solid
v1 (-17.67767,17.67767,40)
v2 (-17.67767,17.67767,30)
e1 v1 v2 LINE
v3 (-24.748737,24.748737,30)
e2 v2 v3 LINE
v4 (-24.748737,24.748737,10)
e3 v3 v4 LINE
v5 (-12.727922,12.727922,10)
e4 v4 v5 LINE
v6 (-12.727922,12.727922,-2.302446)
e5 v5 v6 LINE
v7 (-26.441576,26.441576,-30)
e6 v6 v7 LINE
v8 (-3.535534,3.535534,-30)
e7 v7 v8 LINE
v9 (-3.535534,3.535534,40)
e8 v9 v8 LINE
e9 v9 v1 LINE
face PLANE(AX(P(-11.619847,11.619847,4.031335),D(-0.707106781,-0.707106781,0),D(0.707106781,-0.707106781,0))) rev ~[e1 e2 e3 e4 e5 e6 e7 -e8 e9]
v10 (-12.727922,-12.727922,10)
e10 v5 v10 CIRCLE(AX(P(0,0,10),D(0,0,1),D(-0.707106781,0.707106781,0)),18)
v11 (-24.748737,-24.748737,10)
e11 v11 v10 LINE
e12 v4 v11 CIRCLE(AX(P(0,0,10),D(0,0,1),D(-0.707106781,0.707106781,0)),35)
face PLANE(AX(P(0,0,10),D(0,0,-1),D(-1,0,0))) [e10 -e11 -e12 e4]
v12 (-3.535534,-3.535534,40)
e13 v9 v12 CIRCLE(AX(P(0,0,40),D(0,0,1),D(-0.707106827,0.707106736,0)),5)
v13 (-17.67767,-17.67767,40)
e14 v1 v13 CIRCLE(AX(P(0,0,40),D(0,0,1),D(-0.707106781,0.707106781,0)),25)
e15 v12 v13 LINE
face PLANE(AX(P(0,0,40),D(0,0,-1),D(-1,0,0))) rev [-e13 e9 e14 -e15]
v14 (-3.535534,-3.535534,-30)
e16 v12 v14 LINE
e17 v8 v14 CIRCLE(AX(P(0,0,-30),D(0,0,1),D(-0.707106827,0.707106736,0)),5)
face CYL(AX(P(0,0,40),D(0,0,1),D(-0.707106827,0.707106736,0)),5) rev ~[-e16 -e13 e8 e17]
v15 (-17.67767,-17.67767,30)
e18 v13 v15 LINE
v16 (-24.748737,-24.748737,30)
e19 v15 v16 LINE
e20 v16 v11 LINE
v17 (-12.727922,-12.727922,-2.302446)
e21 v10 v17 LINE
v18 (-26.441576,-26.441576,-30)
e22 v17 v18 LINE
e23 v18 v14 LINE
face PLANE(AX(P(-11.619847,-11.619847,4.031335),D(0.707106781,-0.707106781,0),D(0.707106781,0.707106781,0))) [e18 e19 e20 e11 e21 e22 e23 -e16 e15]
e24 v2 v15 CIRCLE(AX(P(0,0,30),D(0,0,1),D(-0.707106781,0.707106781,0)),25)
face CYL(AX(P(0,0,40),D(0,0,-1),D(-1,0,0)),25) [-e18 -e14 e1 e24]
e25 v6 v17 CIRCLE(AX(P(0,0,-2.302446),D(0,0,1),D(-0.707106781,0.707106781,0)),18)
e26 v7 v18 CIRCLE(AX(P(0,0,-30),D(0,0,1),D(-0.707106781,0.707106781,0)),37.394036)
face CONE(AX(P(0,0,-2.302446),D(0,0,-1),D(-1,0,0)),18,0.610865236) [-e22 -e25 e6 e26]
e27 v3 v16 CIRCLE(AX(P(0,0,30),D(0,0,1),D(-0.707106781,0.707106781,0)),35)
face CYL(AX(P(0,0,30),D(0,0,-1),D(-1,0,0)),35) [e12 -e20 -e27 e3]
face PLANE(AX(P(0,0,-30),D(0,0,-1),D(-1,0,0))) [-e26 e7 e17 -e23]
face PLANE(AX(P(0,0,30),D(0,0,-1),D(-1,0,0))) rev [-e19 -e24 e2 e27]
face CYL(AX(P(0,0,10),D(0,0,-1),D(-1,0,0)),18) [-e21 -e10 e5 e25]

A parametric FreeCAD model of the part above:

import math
import FreeCAD as App
import Part
import Sketcher
Q = App.Units.Quantity


def add_polygon(sketch, points):
    """Adds a closed chain of lines whose ends are joined by coincident constraints."""
    first, n = sketch.GeometryCount, len(points)
    for a, b in zip(points, points[1:] + points[:1]):
        sketch.addGeometry(Part.LineSegment(App.Vector(*a, 0), App.Vector(*b, 0)), False)
    for i in range(n):
        sketch.addConstraint(Sketcher.Constraint("Coincident", first + i, 2, first + (i + 1) % n, 1))

doc = App.newDocument("Part")
body = doc.addObject("PartDesign::Body", "Body")

sketch1 = body.newObject("Sketcher::SketchObject", "Sketch")
sketch1.AttachmentSupport = (doc.getObject("XZ_Plane"), [""])
sketch1.MapMode = "FlatFace"
add_polygon(sketch1, [(0, -30), (0, 40), (-25, 40), (-25, 30), (-35, 30), (-35, 10), (-18, 10), (-18, -2), (-37, -30)])
sketch1.addConstraint([
    Sketcher.Constraint("Vertical", 0),
    Sketcher.Constraint("Horizontal", 1),
    Sketcher.Constraint("Vertical", 2),
    Sketcher.Constraint("Horizontal", 3),
    Sketcher.Constraint("Vertical", 4),
    Sketcher.Constraint("Horizontal", 5),
    Sketcher.Constraint("Vertical", 6),
    Sketcher.Constraint("Horizontal", 8),
    Sketcher.Constraint("PointOnObject", 0, 2, -2),
    Sketcher.Constraint("Equal", 3, 2),
    Sketcher.Constraint("DistanceX", 1, 2, 1, 1, Q("25 mm")),
    Sketcher.Constraint("DistanceX", 3, 2, 3, 1, Q("10 mm")),
    Sketcher.Constraint("DistanceX", 5, 1, 5, 2, Q("17 mm")),
    Sketcher.Constraint("DistanceY", 0, 1, 0, 2, Q("70 mm")),
    Sketcher.Constraint("DistanceY", 4, 2, 4, 1, Q("20 mm")),
    Sketcher.Constraint("Angle", 7, Q("-125 deg")),
    Sketcher.Constraint("DistanceY", -1, 1, 0, 2, Q("40 mm")),
    Sketcher.Constraint("Distance", 7, Q("33.81247 mm")),
])
revolution = body.newObject("PartDesign::Revolution", "Revolution")
revolution.Profile = sketch1
revolution.ReferenceAxis = (sketch1, ["V_Axis"])
revolution.Angle = 45

sketch2 = body.newObject("Sketcher::SketchObject", "Sketch001")
sketch2.AttachmentSupport = (doc.getObject("XZ_Plane"), [""])
sketch2.MapMode = "FlatFace"
add_polygon(sketch2, [(0, -30), (0, 40), (-25, 40), (-25, 30), (-35, 30), (-35, 10), (-18, 10), (-18, -2), (-37, -30)])
sketch2.addConstraint([
    Sketcher.Constraint("Vertical", 0),
    Sketcher.Constraint("Horizontal", 1),
    Sketcher.Constraint("Vertical", 2),
    Sketcher.Constraint("Horizontal", 3),
    Sketcher.Constraint("Vertical", 4),
    Sketcher.Constraint("Horizontal", 5),
    Sketcher.Constraint("Vertical", 6),
    Sketcher.Constraint("Horizontal", 8),
    Sketcher.Constraint("PointOnObject", 0, 2, -2),
    Sketcher.Constraint("Equal", 3, 2),
    Sketcher.Constraint("DistanceX", 1, 2, 1, 1, Q("25 mm")),
    Sketcher.Constraint("DistanceX", 3, 2, 3, 1, Q("10 mm")),
    Sketcher.Constraint("DistanceX", 5, 1, 5, 2, Q("17 mm")),
    Sketcher.Constraint("DistanceY", 0, 1, 0, 2, Q("70 mm")),
    Sketcher.Constraint("DistanceY", 4, 2, 4, 1, Q("20 mm")),
    Sketcher.Constraint("Angle", 7, Q("-125 deg")),
    Sketcher.Constraint("DistanceY", -1, 1, 0, 2, Q("40 mm")),
    Sketcher.Constraint("Distance", 7, Q("33.81247 mm")),
])
revolution2 = body.newObject("PartDesign::Revolution", "Revolution001")
revolution2.Profile = sketch2
revolution2.ReferenceAxis = (sketch2, ["V_Axis"])
revolution2.Angle = 45
revolution2.Reversed = True

sketch3 = body.newObject("Sketcher::SketchObject", "Sketch002")
sketch3.AttachmentSupport = (doc.getObject("XY_Plane"), [""])
sketch3.MapMode = "FlatFace"
sketch3.AttachmentOffset = App.Placement(App.Vector(0, 0, 40), App.Rotation())
sketch3.addGeometry([
    Part.LineSegment(App.Vector(0, 0, 0), App.Vector(-4, 4, 0)),
    Part.ArcOfCircle(Part.Circle(App.Vector(0, 0, 0), App.Vector(0, 0, 1), 5), math.radians(135), math.radians(225)),
    Part.LineSegment(App.Vector(-4, -4, 0), App.Vector(0, 0, 0)),
], False)
sketch3.addConstraint([
    Sketcher.Constraint("Coincident", 0, 2, 1, 1),
    Sketcher.Constraint("Coincident", 1, 2, 2, 1),
    Sketcher.Constraint("Coincident", 2, 2, 0, 1),
    Sketcher.Constraint("Coincident", 1, 3, -1, 1),
    Sketcher.Constraint("Coincident", 2, 2, -1, 1),
    Sketcher.Constraint("Perpendicular", 0, 2),
    Sketcher.Constraint("Vertical", 0, 2, 1, 2),
    Sketcher.Constraint("Radius", 1, Q("5 mm")),
])
pocket1 = body.newObject("PartDesign::Pocket", "Pocket")
pocket1.Profile = sketch3
pocket1.Type = "ThroughAll"

doc.recompute()
